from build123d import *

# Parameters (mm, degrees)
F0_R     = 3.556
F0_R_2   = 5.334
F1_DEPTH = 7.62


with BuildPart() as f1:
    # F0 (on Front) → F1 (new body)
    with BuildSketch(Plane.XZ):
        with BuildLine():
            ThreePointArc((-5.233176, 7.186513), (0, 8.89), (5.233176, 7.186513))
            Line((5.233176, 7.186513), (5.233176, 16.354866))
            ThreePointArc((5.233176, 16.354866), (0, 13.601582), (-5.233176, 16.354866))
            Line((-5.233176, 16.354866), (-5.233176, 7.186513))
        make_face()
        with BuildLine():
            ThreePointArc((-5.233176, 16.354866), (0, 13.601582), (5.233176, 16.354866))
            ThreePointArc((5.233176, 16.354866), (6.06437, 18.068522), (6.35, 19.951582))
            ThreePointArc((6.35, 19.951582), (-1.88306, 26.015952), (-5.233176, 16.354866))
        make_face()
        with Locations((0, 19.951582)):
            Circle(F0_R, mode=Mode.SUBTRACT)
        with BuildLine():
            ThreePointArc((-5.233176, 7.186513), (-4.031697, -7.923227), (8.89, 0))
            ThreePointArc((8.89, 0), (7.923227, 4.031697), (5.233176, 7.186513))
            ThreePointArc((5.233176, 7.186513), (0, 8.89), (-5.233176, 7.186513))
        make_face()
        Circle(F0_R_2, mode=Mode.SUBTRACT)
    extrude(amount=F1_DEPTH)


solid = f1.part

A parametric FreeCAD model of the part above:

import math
import FreeCAD as App
import Part
import Sketcher
from FreeCAD import Vector
Q = App.Units.Quantity

doc = App.newDocument("Part")
body = doc.addObject("PartDesign::Body", "Body")

# Sketch on XZ plane
sketch1 = body.newObject("Sketcher::SketchObject", "Sketch")
sketch1.AttachmentSupport = (doc.getObject("XZ_Plane"), [""])
sketch1.MapMode = "FlatFace"
sketch1.addGeometry([
    Part.LineSegment(Vector(-5.2, 16.4, 0), Vector(-5.2, 7.2, 0)),  # 0
    Part.ArcOfCircle(Part.Circle(Vector(0, 0, 0), Vector(0, 0, 1), 8.9), math.radians(126), math.radians(360)),  # 1
    Part.ArcOfCircle(Part.Circle(Vector(0, 0, 0), Vector(0, 0, 1), 8.9), math.radians(0), math.radians(54)),  # 2
    Part.LineSegment(Vector(5.2, 7.2, 0), Vector(5.2, 16.4, 0)),  # 3
    Part.ArcOfCircle(Part.Circle(Vector(0, 20, 0), Vector(0, 0, 1), 6.3), math.radians(-35), math.radians(0)),  # 4
    Part.ArcOfCircle(Part.Circle(Vector(0, 20, 0), Vector(0, 0, 1), 6.3), math.radians(0), math.radians(215)),  # 5
    Part.Circle(Vector(0, 0, 0), Vector(0, 0, 1), 5.3),  # 6
    Part.Circle(Vector(0, 20, 0), Vector(0, 0, 1), 3.6),  # 7
], False)
sketch1.addConstraint([
    Sketcher.Constraint("Coincident", 0, 2, 1, 1),
    Sketcher.Constraint("Tangent", 1, 2, 2, 1),
    Sketcher.Constraint("Coincident", 2, 2, 3, 1),
    Sketcher.Constraint("Coincident", 3, 2, 4, 1),
    Sketcher.Constraint("Tangent", 4, 2, 5, 1),
    Sketcher.Constraint("Coincident", 5, 2, 0, 1),
    Sketcher.Constraint("Vertical", 0),
    Sketcher.Constraint("Vertical", 3),
    Sketcher.Constraint("Coincident", 1, 3, -1, 1),
    Sketcher.Constraint("Coincident", 6, 3, -1, 1),
    Sketcher.Constraint("Coincident", 7, 3, 4, 3),
    Sketcher.Constraint("Equal", 4, 5),
    Sketcher.Constraint("Symmetric", 0, 2, 2, 2, -2),
    Sketcher.Constraint("PointOnObject", 4, 3, -2),
    Sketcher.Constraint("PointOnObject", 1, 2, -1),
    Sketcher.Constraint("Horizontal", 7, 3, 4, 2),
    Sketcher.Constraint("Diameter", 6, Q("0.42 in")),
    Sketcher.Constraint("Diameter", 7, Q("0.28 in")),
    Sketcher.Constraint("Radius", 1, Q("0.35 in")),
    Sketcher.Constraint("Radius", 4, Q("0.25 in")),
    Sketcher.Constraint("DistanceY", 0, 2, 0, 1, Q("9.168353 mm")),
    Sketcher.Constraint("DistanceY", -1, 1, 7, 3, Q("19.951582 mm")),
])
pad1 = body.newObject("PartDesign::Pad", "Pad")
pad1.Profile = sketch1
pad1.Length = Q("0.3 in")

doc.recompute()
